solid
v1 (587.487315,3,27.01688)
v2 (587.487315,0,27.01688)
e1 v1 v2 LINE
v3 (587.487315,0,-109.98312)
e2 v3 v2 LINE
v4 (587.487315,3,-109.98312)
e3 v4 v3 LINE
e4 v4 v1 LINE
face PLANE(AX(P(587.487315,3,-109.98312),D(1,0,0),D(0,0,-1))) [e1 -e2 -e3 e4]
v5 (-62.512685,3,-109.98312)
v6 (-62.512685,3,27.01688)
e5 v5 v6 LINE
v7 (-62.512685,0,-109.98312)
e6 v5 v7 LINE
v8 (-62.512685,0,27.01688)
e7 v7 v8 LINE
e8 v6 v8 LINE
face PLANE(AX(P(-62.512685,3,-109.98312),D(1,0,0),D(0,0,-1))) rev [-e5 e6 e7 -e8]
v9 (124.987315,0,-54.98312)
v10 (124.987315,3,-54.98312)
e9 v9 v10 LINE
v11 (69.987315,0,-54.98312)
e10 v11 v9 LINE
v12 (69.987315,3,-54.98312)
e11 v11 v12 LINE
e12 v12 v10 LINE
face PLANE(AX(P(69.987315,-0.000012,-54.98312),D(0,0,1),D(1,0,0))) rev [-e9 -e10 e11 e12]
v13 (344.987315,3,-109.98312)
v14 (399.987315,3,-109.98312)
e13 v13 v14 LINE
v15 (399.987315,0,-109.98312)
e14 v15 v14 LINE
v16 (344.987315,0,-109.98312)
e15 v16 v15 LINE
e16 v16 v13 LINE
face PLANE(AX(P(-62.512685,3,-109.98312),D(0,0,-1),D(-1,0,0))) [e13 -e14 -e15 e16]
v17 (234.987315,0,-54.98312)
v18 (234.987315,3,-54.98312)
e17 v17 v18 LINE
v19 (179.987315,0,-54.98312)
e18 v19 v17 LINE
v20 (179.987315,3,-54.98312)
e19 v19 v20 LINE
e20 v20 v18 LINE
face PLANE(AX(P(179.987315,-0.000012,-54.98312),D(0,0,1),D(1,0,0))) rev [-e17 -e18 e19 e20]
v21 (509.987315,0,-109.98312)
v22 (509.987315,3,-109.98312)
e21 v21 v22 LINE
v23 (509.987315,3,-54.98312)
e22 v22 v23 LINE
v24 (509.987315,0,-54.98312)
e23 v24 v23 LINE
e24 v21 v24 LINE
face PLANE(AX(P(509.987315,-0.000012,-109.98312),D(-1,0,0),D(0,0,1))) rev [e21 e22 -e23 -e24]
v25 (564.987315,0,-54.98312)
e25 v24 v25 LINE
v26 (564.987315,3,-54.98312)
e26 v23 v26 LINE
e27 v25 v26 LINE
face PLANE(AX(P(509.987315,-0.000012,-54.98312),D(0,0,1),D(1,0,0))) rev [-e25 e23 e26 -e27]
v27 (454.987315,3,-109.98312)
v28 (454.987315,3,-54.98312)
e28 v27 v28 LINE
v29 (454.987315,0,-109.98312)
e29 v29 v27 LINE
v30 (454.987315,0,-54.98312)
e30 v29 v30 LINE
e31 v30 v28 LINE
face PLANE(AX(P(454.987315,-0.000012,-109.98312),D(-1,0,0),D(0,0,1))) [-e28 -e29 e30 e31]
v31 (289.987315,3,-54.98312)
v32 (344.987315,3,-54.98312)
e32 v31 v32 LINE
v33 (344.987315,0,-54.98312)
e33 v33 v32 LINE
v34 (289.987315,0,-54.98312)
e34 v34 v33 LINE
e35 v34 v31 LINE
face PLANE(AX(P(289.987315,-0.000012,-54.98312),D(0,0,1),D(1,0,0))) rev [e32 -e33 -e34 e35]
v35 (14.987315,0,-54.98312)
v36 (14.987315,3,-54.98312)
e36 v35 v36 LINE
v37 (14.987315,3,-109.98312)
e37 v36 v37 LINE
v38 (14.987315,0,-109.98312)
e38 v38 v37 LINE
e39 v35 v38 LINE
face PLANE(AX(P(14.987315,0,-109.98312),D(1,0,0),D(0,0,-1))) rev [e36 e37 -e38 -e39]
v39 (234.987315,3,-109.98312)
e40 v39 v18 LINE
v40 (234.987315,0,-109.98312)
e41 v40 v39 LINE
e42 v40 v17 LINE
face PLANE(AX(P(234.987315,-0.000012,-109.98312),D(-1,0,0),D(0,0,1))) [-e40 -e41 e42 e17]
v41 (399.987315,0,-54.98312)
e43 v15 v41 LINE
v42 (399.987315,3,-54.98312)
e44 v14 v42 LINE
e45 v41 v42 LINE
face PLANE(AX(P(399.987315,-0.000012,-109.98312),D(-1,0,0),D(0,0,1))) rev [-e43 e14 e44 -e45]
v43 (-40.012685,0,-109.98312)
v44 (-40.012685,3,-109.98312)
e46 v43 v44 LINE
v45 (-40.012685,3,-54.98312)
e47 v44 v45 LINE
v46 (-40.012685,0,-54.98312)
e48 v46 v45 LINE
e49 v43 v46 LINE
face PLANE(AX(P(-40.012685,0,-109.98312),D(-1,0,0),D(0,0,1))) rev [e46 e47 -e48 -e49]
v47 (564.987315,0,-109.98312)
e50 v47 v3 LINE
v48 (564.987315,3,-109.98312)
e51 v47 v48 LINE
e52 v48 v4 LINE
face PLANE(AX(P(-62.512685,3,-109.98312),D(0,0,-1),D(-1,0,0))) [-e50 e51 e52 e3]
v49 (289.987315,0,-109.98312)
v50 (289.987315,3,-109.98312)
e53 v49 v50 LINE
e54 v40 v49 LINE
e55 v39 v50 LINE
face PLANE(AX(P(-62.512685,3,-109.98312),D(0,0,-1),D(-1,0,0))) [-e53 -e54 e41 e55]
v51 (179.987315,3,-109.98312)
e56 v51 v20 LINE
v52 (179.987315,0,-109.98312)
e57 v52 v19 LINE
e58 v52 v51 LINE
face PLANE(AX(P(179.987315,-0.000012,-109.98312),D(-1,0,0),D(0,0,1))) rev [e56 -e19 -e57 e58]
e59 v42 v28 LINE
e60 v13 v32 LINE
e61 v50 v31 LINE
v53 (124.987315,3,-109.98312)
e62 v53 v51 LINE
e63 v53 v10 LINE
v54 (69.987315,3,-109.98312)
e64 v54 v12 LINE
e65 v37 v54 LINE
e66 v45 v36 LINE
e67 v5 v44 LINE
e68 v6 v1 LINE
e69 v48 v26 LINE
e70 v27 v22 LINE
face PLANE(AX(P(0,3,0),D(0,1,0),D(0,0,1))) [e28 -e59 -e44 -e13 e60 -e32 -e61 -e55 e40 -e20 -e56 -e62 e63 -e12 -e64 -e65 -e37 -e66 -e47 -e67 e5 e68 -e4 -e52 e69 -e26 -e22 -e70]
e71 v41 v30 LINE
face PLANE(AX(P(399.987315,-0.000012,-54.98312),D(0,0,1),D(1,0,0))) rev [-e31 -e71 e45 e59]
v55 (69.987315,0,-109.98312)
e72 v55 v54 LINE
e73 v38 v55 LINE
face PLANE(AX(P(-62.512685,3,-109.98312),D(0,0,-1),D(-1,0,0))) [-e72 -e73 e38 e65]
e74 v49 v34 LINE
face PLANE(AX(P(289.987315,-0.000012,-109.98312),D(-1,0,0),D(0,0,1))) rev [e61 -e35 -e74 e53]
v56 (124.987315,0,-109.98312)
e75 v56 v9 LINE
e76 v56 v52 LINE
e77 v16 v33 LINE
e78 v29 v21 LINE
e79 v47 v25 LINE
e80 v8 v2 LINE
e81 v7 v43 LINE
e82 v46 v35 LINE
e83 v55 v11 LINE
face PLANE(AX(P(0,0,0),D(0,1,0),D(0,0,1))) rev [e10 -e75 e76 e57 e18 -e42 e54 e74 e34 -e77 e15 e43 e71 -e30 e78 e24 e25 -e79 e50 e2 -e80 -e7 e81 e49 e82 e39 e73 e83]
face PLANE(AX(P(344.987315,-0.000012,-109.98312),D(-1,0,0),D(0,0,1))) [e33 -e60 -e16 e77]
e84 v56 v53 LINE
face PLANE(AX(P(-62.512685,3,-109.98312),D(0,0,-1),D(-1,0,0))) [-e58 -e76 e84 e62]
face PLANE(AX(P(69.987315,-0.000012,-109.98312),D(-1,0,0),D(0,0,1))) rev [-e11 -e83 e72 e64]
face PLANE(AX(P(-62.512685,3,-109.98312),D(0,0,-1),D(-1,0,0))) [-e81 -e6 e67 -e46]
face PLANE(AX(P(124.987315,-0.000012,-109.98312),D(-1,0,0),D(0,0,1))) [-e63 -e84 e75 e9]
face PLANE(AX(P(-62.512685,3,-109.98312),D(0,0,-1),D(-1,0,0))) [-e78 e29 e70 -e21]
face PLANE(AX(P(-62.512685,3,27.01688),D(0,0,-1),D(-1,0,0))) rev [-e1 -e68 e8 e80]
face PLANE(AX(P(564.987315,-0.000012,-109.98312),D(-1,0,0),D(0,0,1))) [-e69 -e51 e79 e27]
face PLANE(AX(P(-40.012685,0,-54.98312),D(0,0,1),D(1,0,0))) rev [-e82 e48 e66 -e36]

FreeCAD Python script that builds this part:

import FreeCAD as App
import Part
import Sketcher
Q = App.Units.Quantity

doc = App.newDocument("Part")
body = doc.addObject("PartDesign::Body", "Body")

# Sketch on XZ plane
sketch1 = body.newObject("Sketcher::SketchObject", "Sketch")
sketch1.AttachmentSupport = (doc.getObject("XZ_Plane"), [""])
sketch1.MapMode = "FlatFace"
sketch1.addGeometry([
    Part.LineSegment(App.Vector(-63, -110, 0), App.Vector(-63, 27, 0)),
    Part.LineSegment(App.Vector(-63, 27, 0), App.Vector(587, 27, 0)),
    Part.LineSegment(App.Vector(587, 27, 0), App.Vector(587, -110, 0)),
    Part.LineSegment(App.Vector(587, -110, 0), App.Vector(-63, -110, 0)),
], False)
sketch1.addConstraint([
    Sketcher.Constraint("Coincident", 0, 2, 1, 1),
    Sketcher.Constraint("Coincident", 1, 2, 2, 1),
    Sketcher.Constraint("Coincident", 2, 2, 3, 1),
    Sketcher.Constraint("Coincident", 3, 2, 0, 1),
    Sketcher.Constraint("Vertical", 0),
    Sketcher.Constraint("Horizontal", 1),
    Sketcher.Constraint("Vertical", 2),
    Sketcher.Constraint("Horizontal", 3),
    Sketcher.Constraint("DistanceX", 1, 1, 1, 2, Q("650 mm")),
    Sketcher.Constraint("DistanceY", 0, 1, 0, 2, Q("137 mm")),
    Sketcher.Constraint("DistanceY", -1, 1, 0, 2, Q("27.01688 mm")),
    Sketcher.Constraint("DistanceX", 0, 2, -1, 1, Q("62.512685 mm")),
])
pad1 = body.newObject("PartDesign::Pad", "Pad")
pad1.Profile = sketch1
pad1.Length = 3
pad1.Reversed = True

# Sketch on XZ plane
sketch2 = body.newObject("Sketcher::SketchObject", "Sketch001")
sketch2.AttachmentSupport = (doc.getObject("XZ_Plane"), [""])
sketch2.MapMode = "FlatFace"
sketch2.addGeometry([
    Part.LineSegment(App.Vector(70, -110, 0), App.Vector(70, -55, 0)),  # 0
    Part.LineSegment(App.Vector(70, -55, 0), App.Vector(125, -55, 0)),  # 1
    Part.LineSegment(App.Vector(125, -55, 0), App.Vector(125, -110, 0)),  # 2
    Part.LineSegment(App.Vector(125, -110, 0), App.Vector(70, -110, 0)),  # 3
    Part.LineSegment(App.Vector(180, -110, 0), App.Vector(180, -55, 0)),  # 4
    Part.LineSegment(App.Vector(180, -55, 0), App.Vector(235, -55, 0)),  # 5
    Part.LineSegment(App.Vector(235, -55, 0), App.Vector(235, -110, 0)),  # 6
    Part.LineSegment(App.Vector(235, -110, 0), App.Vector(180, -110, 0)),  # 7
    Part.LineSegment(App.Vector(290, -110, 0), App.Vector(290, -55, 0)),  # 8
    Part.LineSegment(App.Vector(290, -55, 0), App.Vector(345, -55, 0)),  # 9
    Part.LineSegment(App.Vector(345, -55, 0), App.Vector(345, -110, 0)),  # 10
    Part.LineSegment(App.Vector(345, -110, 0), App.Vector(290, -110, 0)),  # 11
    Part.LineSegment(App.Vector(400, -110, 0), App.Vector(400, -55, 0)),  # 12
    Part.LineSegment(App.Vector(400, -55, 0), App.Vector(455, -55, 0)),  # 13
    Part.LineSegment(App.Vector(455, -55, 0), App.Vector(455, -110, 0)),  # 14
    Part.LineSegment(App.Vector(455, -110, 0), App.Vector(400, -110, 0)),  # 15
    Part.LineSegment(App.Vector(510, -110, 0), App.Vector(510, -55, 0)),  # 16
    Part.LineSegment(App.Vector(510, -55, 0), App.Vector(565, -55, 0)),  # 17
    Part.LineSegment(App.Vector(565, -55, 0), App.Vector(565, -110, 0)),  # 18
    Part.LineSegment(App.Vector(565, -110, 0), App.Vector(510, -110, 0)),  # 19
], False)
sketch2.addConstraint([
    Sketcher.Constraint("Coincident", 0, 2, 1, 1),
    Sketcher.Constraint("Coincident", 1, 2, 2, 1),
    Sketcher.Constraint("Coincident", 2, 2, 3, 1),
    Sketcher.Constraint("Coincident", 3, 2, 0, 1),
    Sketcher.Constraint("Coincident", 4, 2, 5, 1),
    Sketcher.Constraint("Coincident", 5, 2, 6, 1),
    Sketcher.Constraint("Coincident", 6, 2, 7, 1),
    Sketcher.Constraint("Coincident", 7, 2, 4, 1),
    Sketcher.Constraint("Coincident", 8, 2, 9, 1),
    Sketcher.Constraint("Coincident", 9, 2, 10, 1),
    Sketcher.Constraint("Coincident", 10, 2, 11, 1),
    Sketcher.Constraint("Coincident", 11, 2, 8, 1),
    Sketcher.Constraint("Coincident", 12, 2, 13, 1),
    Sketcher.Constraint("Coincident", 13, 2, 14, 1),
    Sketcher.Constraint("Coincident", 14, 2, 15, 1),
    Sketcher.Constraint("Coincident", 15, 2, 12, 1),
    Sketcher.Constraint("Coincident", 16, 2, 17, 1),
    Sketcher.Constraint("Coincident", 17, 2, 18, 1),
    Sketcher.Constraint("Coincident", 18, 2, 19, 1),
    Sketcher.Constraint("Coincident", 19, 2, 16, 1),
    Sketcher.Constraint("Vertical", 0),
    Sketcher.Constraint("Horizontal", 1),
    Sketcher.Constraint("Vertical", 2),
    Sketcher.Constraint("Horizontal", 3),
    Sketcher.Constraint("Vertical", 4),
    Sketcher.Constraint("Horizontal", 5),
    Sketcher.Constraint("Vertical", 6),
    Sketcher.Constraint("Horizontal", 7),
    Sketcher.Constraint("Vertical", 8),
    Sketcher.Constraint("Horizontal", 9),
    Sketcher.Constraint("Vertical", 10),
    Sketcher.Constraint("Horizontal", 11),
    Sketcher.Constraint("Vertical", 12),
    Sketcher.Constraint("Horizontal", 13),
    Sketcher.Constraint("Vertical", 14),
    Sketcher.Constraint("Horizontal", 15),
    Sketcher.Constraint("Vertical", 16),
    Sketcher.Constraint("Horizontal", 17),
    Sketcher.Constraint("Vertical", 18),
    Sketcher.Constraint("Horizontal", 19),
    Sketcher.Constraint("Horizontal", 1, 2, 4, 2),
    Sketcher.Constraint("Horizontal", 3, 2, 6, 2),
    Sketcher.Constraint("Horizontal", 5, 2, 8, 2),
    Sketcher.Constraint("Horizontal", 7, 2, 10, 2),
    Sketcher.Constraint("Horizontal", 9, 2, 12, 2),
    Sketcher.Constraint("Horizontal", 11, 2, 14, 2),
    Sketcher.Constraint("Horizontal", 13, 2, 16, 2),
    Sketcher.Constraint("Horizontal", 15, 2, 18, 2),
    Sketcher.Constraint("Equal", 3, 5),
    Sketcher.Constraint("Equal", 7, 9),
    Sketcher.Constraint("Equal", 11, 13),
    Sketcher.Constraint("Equal", 15, 17),
    Sketcher.Constraint("Equal", 19, 0),
    Sketcher.Constraint("DistanceX", 1, 1, 1, 2, Q("55 mm")),
    Sketcher.Constraint("DistanceX", 1, 2, 4, 2, Q("55 mm")),
    Sketcher.Constraint("DistanceX", 5, 2, 8, 2, Q("55 mm")),
    Sketcher.Constraint("DistanceX", 9, 2, 12, 2, Q("55 mm")),
    Sketcher.Constraint("DistanceX", 13, 2, 16, 2, Q("55 mm")),
    Sketcher.Constraint("DistanceY", 0, 2, -1, 1, Q("54.98312 mm")),
    Sketcher.Constraint("DistanceX", -1, 1, 0, 2, Q("69.987315 mm")),
])
pocket1 = body.newObject("PartDesign::Pocket", "Pocket")
pocket1.Profile = sketch2
pocket1.Type = "ThroughAll"
pocket1.Midplane = True

# Sketch on XZ plane
sketch3 = body.newObject("Sketcher::SketchObject", "Sketch002")
sketch3.AttachmentSupport = (doc.getObject("XZ_Plane"), [""])
sketch3.MapMode = "FlatFace"
sketch3.AttachmentOffset = App.Placement(App.Vector(0, 0, -3), App.Rotation())
sketch3.addGeometry([
    Part.LineSegment(App.Vector(-40, -110, 0), App.Vector(-40, -55, 0)),
    Part.LineSegment(App.Vector(-40, -55, 0), App.Vector(15, -55, 0)),
    Part.LineSegment(App.Vector(15, -55, 0), App.Vector(15, -110, 0)),
    Part.LineSegment(App.Vector(15, -110, 0), App.Vector(-40, -110, 0)),
], False)
sketch3.addConstraint([
    Sketcher.Constraint("Coincident", 0, 2, 1, 1),
    Sketcher.Constraint("Coincident", 1, 2, 2, 1),
    Sketcher.Constraint("Coincident", 2, 2, 3, 1),
    Sketcher.Constraint("Coincident", 3, 2, 0, 1),
    Sketcher.Constraint("Vertical", 0),
    Sketcher.Constraint("Horizontal", 1),
    Sketcher.Constraint("Vertical", 2),
    Sketcher.Constraint("Horizontal", 3),
    Sketcher.Constraint("Equal", 3, 0),
    Sketcher.Constraint("DistanceX", 1, 1, 1, 2, Q("55 mm")),
    Sketcher.Constraint("DistanceY", 0, 2, -1, 1, Q("54.98312 mm")),
    Sketcher.Constraint("DistanceX", 0, 2, -1, 1, Q("40.012685 mm")),
])
pocket2 = body.newObject("PartDesign::Pocket", "Pocket001")
pocket2.Profile = sketch3
pocket2.Type = "ThroughAll"
pocket2.Reversed = True

doc.recompute()
